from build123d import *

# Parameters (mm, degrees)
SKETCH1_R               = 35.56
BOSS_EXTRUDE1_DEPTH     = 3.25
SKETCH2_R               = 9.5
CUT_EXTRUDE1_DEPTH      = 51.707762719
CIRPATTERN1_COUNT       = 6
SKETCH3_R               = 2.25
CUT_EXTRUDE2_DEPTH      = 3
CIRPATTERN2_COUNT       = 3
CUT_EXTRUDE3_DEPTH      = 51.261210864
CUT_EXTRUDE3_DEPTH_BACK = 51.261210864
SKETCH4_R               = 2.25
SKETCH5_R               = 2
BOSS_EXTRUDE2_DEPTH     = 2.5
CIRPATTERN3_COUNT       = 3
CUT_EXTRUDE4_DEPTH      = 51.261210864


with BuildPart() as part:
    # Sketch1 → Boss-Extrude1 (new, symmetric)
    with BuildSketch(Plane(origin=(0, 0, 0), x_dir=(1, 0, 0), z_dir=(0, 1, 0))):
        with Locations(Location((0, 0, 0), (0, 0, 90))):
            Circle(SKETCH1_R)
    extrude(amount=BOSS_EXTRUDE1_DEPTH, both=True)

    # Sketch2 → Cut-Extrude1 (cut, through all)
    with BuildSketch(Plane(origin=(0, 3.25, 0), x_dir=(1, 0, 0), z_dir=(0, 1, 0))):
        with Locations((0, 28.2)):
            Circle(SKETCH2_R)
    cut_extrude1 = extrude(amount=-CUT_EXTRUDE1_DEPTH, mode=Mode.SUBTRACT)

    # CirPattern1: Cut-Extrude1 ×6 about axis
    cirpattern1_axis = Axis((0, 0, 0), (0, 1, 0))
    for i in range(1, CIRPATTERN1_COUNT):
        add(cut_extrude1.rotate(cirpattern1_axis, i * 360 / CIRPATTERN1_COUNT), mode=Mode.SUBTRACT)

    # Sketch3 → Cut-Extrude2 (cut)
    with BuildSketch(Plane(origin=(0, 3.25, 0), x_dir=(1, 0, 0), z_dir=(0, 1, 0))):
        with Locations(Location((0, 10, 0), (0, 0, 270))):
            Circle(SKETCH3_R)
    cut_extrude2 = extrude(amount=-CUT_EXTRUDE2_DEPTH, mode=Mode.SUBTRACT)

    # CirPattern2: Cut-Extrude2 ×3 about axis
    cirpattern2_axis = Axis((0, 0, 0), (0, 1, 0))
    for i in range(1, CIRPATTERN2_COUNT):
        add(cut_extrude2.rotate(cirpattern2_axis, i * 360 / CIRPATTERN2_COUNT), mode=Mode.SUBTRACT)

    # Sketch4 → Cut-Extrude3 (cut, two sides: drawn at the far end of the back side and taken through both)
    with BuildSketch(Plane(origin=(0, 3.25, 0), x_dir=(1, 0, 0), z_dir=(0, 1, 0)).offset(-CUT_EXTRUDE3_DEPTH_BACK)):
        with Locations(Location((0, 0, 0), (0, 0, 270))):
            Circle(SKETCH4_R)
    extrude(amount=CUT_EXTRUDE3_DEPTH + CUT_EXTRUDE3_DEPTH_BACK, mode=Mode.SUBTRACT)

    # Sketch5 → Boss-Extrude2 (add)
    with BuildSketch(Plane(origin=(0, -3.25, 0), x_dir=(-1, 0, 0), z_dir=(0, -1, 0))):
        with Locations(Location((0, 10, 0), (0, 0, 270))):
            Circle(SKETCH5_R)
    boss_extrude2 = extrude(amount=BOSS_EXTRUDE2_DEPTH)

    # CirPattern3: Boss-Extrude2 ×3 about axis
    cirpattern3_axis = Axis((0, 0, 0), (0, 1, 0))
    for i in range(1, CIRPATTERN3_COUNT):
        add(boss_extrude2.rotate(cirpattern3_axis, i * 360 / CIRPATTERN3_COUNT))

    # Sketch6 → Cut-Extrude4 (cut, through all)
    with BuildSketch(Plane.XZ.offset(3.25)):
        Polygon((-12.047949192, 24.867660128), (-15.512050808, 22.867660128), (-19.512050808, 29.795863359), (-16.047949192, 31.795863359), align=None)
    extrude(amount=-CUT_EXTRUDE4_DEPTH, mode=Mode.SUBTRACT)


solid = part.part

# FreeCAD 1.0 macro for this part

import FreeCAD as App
import Part
import Sketcher
Q = App.Units.Quantity


def add_polygon(sketch, points):
    """Adds a closed chain of lines whose ends are joined by coincident constraints."""
    first, n = sketch.GeometryCount, len(points)
    for a, b in zip(points, points[1:] + points[:1]):
        sketch.addGeometry(Part.LineSegment(App.Vector(*a, 0), App.Vector(*b, 0)), False)
    for i in range(n):
        sketch.addConstraint(Sketcher.Constraint("Coincident", first + i, 2, first + (i + 1) % n, 1))

doc = App.newDocument("Part")
params = doc.addObject("Spreadsheet::Sheet", "Params")
for row, (alias, value) in enumerate([
    ("sketch1_diameter", "71.12 mm"),
    ("pad1_length", "6.5 mm"),
    ("sketch2_diameter", "19 mm"),
    ("sketch3_diameter", "4.5 mm"),
    ("pocket2_length", "3 mm"),
    ("sketch4_diameter", "4.5 mm"),
    ("sketch5_diameter", "4 mm"),
    ("pad2_length", "2.5 mm"),
    ("sketch6_length", "4 mm"),
    ("sketch6_length2", "8 mm"),
], start=1):
    params.set(f"A{row}", alias)
    params.set(f"B{row}", "=" + value)
    params.setAlias(f"B{row}", alias)

body = doc.addObject("PartDesign::Body", "Body")

# Sketch on XZ plane
sketch1 = body.newObject("Sketcher::SketchObject", "Sketch")
sketch1.AttachmentSupport = (doc.getObject("XZ_Plane"), [""])
sketch1.MapMode = "FlatFace"
sketch1.addGeometry(Part.Circle(App.Vector(0, 0, 0), App.Vector(0, 0, 1), 36), False)
sketch1.addConstraint([
    Sketcher.Constraint("Coincident", 0, 3, -1, 1),
    Sketcher.Constraint("Diameter", 0, 71.12),
])
sketch1.setExpression("Constraints[1]", "Params.sketch1_diameter")
pad1 = body.newObject("PartDesign::Pad", "Pad")
pad1.Profile = sketch1
pad1.setExpression("Length", "Params.pad1_length")
pad1.Midplane = True

# Sketch on XZ plane
sketch2 = body.newObject("Sketcher::SketchObject", "Sketch001")
sketch2.AttachmentSupport = (doc.getObject("XZ_Plane"), [""])
sketch2.MapMode = "FlatFace"
sketch2.AttachmentOffset = App.Placement(App.Vector(0, 0, -3.25), App.Rotation())
sketch2.addGeometry(Part.Circle(App.Vector(0, -28, 0), App.Vector(0, 0, 1), 10), False)
sketch2.addConstraint([
    Sketcher.Constraint("PointOnObject", 0, 3, -2),
    Sketcher.Constraint("Diameter", 0, 19.0),
    Sketcher.Constraint("DistanceY", 0, 3, -1, 1, 28.2),
])
sketch2.setExpression("Constraints[1]", "Params.sketch2_diameter")
pocket1 = body.newObject("PartDesign::Pocket", "Pocket")
pocket1.Profile = sketch2
pocket1.Type = "ThroughAll"
pocket1.Reversed = True
doc.recompute()

polarpattern = body.newObject("PartDesign::PolarPattern", "PolarPattern")
polarpattern.Originals = [pocket1]
polarpattern.Axis = (doc.getObject("Y_Axis"), [""])
polarpattern.Angle = 360
polarpattern.Occurrences = 6
body.Tip = polarpattern

# Sketch on XZ plane
sketch3 = body.newObject("Sketcher::SketchObject", "Sketch002")
sketch3.AttachmentSupport = (doc.getObject("XZ_Plane"), [""])
sketch3.MapMode = "FlatFace"
sketch3.AttachmentOffset = App.Placement(App.Vector(0, 0, -3.25), App.Rotation())
sketch3.addGeometry(Part.Circle(App.Vector(0, -10, 0), App.Vector(0, 0, 1), 2.2), False)
sketch3.addConstraint([
    Sketcher.Constraint("PointOnObject", 0, 3, -2),
    Sketcher.Constraint("Diameter", 0, 4.5),
    Sketcher.Constraint("DistanceY", 0, 3, -1, 1, 10.0),
])
sketch3.setExpression("Constraints[1]", "Params.sketch3_diameter")
pocket2 = body.newObject("PartDesign::Pocket", "Pocket001")
pocket2.Profile = sketch3
pocket2.setExpression("Length", "Params.pocket2_length")
pocket2.Reversed = True
doc.recompute()

polarpattern2 = body.newObject("PartDesign::PolarPattern", "PolarPattern001")
polarpattern2.Originals = [pocket2]
polarpattern2.Axis = (doc.getObject("Y_Axis"), [""])
polarpattern2.Angle = 360
polarpattern2.Occurrences = 3
body.Tip = polarpattern2

# Sketch on XZ plane
sketch4 = body.newObject("Sketcher::SketchObject", "Sketch003")
sketch4.AttachmentSupport = (doc.getObject("XZ_Plane"), [""])
sketch4.MapMode = "FlatFace"
sketch4.AttachmentOffset = App.Placement(App.Vector(0, 0, -3.25), App.Rotation())
sketch4.addGeometry(Part.Circle(App.Vector(0, 0, 0), App.Vector(0, 0, 1), 2.2), False)
sketch4.addConstraint([
    Sketcher.Constraint("Coincident", 0, 3, -1, 1),
    Sketcher.Constraint("Diameter", 0, 4.5),
])
sketch4.setExpression("Constraints[1]", "Params.sketch4_diameter")
pocket3 = body.newObject("PartDesign::Pocket", "Pocket002")
pocket3.Profile = sketch4
pocket3.Type = "ThroughAll"
pocket3.Midplane = True

# Sketch on XZ plane
sketch5 = body.newObject("Sketcher::SketchObject", "Sketch004")
sketch5.AttachmentSupport = (doc.getObject("XZ_Plane"), [""])
sketch5.MapMode = "FlatFace"
sketch5.AttachmentOffset = App.Placement(App.Vector(0, 0, 3.25), App.Rotation())
sketch5.addGeometry(Part.Circle(App.Vector(0, -10, 0), App.Vector(0, 0, 1), 2), False)
sketch5.addConstraint([
    Sketcher.Constraint("PointOnObject", 0, 3, -2),
    Sketcher.Constraint("Diameter", 0, 4.0),
    Sketcher.Constraint("DistanceY", 0, 3, -1, 1, 10.0),
])
sketch5.setExpression("Constraints[1]", "Params.sketch5_diameter")
pad2 = body.newObject("PartDesign::Pad", "Pad001")
pad2.Profile = sketch5
pad2.setExpression("Length", "Params.pad2_length")
doc.recompute()

polarpattern3 = body.newObject("PartDesign::PolarPattern", "PolarPattern002")
polarpattern3.Originals = [pad2]
polarpattern3.Axis = (doc.getObject("Y_Axis"), [""])
polarpattern3.Angle = 360
polarpattern3.Occurrences = 3
body.Tip = polarpattern3

# Sketch on XZ plane
sketch6 = body.newObject("Sketcher::SketchObject", "Sketch005")
sketch6.AttachmentSupport = (doc.getObject("XZ_Plane"), [""])
sketch6.MapMode = "FlatFace"
sketch6.AttachmentOffset = App.Placement(App.Vector(0, 0, 3.25), App.Rotation())
add_polygon(sketch6, [(-15.5, 22.9), (-12, 24.9), (-16, 31.8), (-19.5, 29.8)])  # lines 0-3
sketch6.addConstraint([
    Sketcher.Constraint("Perpendicular", 0, 1),
    Sketcher.Constraint("Perpendicular", 1, 2),
    Sketcher.Constraint("Perpendicular", 2, 3),
    Sketcher.Constraint("Angle", 0, Q("30 deg")),
    Sketcher.Constraint("Distance", 0, 4.0),
    Sketcher.Constraint("Distance", 1, 8.0),
    Sketcher.Constraint("DistanceX", 0, 2, -1, 1, 12.047949),
    Sketcher.Constraint("DistanceY", -1, 1, 0, 2, 24.86766),
])
sketch6.setExpression("Constraints[8]", "Params.sketch6_length")
sketch6.setExpression("Constraints[9]", "Params.sketch6_length2")
pocket4 = body.newObject("PartDesign::Pocket", "Pocket003")
pocket4.Profile = sketch6
pocket4.Type = "ThroughAll"

doc.recompute()
